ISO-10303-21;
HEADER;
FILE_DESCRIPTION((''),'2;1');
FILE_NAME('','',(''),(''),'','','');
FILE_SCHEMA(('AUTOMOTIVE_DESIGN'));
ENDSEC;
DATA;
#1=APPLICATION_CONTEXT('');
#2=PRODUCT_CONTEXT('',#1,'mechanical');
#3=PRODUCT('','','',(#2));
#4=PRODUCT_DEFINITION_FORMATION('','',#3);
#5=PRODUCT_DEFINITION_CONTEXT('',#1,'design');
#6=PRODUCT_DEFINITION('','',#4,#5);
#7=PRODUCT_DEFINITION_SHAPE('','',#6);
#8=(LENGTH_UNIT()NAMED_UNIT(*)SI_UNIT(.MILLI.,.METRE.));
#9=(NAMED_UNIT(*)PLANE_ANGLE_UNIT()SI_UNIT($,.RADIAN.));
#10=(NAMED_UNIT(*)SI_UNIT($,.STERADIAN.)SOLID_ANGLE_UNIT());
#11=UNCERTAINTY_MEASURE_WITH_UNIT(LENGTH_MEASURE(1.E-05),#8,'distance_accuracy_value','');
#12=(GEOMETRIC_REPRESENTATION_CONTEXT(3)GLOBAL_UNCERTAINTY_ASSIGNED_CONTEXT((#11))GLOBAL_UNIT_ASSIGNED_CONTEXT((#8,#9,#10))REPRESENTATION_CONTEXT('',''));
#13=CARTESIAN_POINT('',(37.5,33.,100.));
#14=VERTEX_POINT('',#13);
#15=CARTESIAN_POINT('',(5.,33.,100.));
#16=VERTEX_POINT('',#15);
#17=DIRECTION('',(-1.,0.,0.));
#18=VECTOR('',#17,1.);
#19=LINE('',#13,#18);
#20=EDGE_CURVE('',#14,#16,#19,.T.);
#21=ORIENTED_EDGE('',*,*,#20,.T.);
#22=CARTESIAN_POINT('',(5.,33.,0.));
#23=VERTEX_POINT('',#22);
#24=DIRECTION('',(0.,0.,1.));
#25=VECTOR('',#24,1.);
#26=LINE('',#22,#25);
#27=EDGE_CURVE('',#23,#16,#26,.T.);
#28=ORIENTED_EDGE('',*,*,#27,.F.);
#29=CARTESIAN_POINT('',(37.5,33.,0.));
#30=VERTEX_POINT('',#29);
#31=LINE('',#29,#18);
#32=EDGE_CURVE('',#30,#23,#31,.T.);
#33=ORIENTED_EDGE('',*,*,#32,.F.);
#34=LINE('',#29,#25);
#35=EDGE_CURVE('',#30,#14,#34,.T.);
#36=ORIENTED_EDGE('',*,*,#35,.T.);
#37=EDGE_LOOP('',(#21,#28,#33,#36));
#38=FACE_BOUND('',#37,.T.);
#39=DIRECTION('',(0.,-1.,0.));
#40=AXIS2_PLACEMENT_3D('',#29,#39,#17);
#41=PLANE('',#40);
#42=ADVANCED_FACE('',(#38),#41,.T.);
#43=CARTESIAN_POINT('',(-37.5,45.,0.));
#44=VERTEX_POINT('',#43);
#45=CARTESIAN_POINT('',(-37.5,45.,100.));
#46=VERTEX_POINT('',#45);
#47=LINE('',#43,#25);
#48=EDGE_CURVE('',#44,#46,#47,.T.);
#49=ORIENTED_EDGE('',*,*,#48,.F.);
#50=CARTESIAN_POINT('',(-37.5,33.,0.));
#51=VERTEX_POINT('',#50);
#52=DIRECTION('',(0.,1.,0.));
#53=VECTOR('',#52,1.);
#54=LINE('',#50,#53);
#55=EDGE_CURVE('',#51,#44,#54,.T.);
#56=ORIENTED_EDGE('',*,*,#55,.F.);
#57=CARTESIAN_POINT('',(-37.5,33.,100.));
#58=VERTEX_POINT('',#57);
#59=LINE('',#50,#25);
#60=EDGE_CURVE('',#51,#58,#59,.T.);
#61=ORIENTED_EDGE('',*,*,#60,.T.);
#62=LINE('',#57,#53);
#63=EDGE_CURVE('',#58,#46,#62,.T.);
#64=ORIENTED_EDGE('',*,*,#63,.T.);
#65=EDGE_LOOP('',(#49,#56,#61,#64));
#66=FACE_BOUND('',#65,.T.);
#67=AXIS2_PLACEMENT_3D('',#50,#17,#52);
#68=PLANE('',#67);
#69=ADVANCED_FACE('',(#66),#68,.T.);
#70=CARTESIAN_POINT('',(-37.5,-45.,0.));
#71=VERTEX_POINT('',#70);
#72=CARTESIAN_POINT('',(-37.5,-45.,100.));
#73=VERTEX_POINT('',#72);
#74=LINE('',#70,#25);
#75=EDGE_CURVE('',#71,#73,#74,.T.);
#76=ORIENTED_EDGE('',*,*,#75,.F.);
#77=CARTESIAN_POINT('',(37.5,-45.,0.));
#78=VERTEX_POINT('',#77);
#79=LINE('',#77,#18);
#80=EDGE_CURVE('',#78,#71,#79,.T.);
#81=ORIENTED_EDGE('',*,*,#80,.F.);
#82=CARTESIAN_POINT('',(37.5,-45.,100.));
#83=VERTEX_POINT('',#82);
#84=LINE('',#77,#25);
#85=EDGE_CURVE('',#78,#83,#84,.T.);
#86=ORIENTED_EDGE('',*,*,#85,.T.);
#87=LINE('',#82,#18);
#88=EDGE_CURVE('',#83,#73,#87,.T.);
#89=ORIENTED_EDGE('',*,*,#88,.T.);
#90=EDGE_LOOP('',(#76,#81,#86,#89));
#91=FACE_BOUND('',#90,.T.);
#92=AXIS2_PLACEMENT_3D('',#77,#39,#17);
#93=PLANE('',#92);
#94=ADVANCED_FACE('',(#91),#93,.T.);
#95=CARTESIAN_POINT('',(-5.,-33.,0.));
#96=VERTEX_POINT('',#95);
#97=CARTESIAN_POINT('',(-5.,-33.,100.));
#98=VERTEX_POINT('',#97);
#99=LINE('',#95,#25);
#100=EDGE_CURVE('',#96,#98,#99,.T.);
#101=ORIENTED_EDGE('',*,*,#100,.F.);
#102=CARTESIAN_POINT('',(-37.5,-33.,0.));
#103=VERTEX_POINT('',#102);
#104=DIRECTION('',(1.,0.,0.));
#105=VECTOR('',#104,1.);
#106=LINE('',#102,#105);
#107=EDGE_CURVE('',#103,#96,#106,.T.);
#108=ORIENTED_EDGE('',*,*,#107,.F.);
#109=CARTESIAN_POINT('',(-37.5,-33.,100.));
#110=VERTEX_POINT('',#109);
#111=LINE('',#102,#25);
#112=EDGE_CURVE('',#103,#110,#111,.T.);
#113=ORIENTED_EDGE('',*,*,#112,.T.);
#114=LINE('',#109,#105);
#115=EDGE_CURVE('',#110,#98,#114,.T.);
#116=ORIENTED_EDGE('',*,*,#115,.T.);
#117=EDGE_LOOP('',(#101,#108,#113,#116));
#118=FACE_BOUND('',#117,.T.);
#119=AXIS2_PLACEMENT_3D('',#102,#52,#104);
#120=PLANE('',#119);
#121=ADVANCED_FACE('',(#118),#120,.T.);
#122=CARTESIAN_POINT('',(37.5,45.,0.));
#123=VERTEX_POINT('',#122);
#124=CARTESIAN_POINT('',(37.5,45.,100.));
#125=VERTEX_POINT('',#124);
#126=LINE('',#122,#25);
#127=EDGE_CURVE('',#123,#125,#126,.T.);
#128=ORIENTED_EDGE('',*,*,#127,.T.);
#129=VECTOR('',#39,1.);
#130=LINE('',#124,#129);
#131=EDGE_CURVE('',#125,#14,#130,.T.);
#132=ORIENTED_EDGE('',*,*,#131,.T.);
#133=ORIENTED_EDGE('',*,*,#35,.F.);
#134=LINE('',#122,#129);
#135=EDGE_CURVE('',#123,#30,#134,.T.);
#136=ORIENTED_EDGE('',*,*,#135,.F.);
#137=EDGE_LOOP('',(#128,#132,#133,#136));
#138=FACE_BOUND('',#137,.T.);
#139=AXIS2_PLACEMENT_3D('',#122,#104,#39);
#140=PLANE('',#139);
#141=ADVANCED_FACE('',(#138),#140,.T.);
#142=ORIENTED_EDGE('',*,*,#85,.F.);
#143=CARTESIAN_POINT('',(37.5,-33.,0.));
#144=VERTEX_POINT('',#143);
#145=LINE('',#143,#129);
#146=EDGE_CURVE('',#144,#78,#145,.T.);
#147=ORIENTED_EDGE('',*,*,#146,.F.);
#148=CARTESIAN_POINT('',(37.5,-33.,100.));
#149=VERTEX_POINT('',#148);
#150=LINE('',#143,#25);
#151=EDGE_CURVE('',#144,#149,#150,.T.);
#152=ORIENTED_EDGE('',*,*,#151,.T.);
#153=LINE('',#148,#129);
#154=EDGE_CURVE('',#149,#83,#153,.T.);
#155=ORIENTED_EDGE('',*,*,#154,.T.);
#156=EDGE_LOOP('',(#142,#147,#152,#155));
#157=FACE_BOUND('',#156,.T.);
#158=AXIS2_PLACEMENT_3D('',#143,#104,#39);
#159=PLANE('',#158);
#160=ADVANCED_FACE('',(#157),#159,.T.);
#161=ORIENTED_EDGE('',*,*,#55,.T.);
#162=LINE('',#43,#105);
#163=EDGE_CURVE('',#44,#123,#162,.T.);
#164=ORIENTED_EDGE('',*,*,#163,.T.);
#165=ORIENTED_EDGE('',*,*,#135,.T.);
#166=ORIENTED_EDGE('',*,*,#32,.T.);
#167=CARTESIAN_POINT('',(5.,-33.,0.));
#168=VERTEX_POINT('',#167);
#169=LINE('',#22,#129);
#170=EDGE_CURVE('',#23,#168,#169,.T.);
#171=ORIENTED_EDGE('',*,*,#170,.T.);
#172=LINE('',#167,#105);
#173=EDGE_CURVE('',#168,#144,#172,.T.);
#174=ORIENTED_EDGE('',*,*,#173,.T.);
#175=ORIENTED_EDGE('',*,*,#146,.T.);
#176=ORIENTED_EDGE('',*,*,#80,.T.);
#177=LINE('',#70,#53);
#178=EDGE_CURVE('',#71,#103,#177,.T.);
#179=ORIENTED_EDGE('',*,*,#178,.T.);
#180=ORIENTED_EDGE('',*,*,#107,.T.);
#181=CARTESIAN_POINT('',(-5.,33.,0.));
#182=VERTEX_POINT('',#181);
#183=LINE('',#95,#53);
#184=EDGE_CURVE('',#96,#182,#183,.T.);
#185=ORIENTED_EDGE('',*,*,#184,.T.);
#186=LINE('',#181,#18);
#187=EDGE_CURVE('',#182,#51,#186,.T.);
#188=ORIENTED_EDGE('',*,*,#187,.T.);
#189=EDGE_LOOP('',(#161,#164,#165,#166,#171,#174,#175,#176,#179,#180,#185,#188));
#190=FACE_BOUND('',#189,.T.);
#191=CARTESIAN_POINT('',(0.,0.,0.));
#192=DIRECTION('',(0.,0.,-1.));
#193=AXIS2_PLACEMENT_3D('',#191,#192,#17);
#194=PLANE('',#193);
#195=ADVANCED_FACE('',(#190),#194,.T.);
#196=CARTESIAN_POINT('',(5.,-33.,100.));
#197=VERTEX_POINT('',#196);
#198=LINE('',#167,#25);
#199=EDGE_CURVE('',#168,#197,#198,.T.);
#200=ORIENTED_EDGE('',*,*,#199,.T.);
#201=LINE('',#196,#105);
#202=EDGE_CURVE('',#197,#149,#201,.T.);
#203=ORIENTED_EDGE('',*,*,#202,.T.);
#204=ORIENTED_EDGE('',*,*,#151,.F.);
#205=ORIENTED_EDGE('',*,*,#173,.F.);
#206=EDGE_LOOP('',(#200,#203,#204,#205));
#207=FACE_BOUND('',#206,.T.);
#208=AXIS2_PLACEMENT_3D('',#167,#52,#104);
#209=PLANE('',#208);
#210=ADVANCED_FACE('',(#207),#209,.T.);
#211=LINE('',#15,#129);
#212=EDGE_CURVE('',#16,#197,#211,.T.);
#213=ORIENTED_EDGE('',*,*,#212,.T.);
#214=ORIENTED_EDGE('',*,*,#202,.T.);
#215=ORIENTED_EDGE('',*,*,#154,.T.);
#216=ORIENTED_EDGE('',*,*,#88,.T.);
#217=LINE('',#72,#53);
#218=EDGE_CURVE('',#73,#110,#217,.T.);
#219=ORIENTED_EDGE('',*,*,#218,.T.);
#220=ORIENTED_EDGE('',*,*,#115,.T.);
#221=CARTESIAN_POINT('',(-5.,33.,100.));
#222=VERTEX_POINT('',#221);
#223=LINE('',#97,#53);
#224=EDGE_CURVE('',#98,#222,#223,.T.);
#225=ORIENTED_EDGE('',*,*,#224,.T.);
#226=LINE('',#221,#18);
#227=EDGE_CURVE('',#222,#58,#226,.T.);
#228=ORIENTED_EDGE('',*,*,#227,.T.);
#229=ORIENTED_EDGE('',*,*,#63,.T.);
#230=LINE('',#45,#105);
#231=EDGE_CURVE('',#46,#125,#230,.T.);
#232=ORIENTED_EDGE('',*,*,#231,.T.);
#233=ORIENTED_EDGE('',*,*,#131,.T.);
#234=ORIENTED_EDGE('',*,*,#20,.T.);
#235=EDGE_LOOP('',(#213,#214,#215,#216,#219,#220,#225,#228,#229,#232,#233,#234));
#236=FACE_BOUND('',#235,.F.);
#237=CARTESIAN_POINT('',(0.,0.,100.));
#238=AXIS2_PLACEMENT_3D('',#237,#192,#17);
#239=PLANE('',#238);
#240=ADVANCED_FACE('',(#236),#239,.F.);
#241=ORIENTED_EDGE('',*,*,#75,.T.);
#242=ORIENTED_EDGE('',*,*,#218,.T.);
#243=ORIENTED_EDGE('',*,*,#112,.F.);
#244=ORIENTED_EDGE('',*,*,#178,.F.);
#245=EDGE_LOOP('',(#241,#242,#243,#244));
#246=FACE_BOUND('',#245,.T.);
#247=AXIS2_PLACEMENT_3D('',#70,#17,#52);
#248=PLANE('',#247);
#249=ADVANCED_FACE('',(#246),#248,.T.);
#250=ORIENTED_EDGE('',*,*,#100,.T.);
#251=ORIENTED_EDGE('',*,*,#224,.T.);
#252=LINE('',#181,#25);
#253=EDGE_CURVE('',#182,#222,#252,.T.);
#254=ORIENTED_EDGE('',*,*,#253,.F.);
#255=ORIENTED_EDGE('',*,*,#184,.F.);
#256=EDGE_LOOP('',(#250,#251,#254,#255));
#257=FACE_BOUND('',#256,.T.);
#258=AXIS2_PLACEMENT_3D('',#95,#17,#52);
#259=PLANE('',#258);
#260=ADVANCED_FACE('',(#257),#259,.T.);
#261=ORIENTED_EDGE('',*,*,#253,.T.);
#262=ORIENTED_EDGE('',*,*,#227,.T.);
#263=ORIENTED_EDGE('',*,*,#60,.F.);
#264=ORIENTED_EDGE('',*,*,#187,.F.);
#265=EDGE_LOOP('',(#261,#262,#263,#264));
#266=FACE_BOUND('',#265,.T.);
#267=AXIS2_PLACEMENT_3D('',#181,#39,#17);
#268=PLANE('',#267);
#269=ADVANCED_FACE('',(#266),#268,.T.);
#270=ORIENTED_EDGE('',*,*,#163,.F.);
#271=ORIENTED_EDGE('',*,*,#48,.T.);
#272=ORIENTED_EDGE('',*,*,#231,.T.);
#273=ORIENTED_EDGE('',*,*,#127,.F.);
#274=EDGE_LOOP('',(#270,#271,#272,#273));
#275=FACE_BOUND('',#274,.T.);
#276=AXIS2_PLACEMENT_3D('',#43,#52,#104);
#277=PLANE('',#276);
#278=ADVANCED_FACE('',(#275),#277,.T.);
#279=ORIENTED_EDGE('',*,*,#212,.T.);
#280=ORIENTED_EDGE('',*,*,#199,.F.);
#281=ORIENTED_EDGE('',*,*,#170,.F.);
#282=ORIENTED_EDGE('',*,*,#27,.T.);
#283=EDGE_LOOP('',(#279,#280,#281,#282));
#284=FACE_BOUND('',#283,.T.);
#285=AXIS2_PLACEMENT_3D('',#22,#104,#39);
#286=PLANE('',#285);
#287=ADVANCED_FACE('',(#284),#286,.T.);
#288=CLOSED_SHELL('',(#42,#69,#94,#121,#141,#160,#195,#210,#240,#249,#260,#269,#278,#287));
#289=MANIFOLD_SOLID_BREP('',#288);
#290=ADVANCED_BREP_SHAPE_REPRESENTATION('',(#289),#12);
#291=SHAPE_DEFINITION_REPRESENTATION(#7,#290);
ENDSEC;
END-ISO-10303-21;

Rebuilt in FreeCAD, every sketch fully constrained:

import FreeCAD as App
import Part
import Sketcher
from FreeCAD import Vector

doc = App.newDocument("Part")
body = doc.addObject("PartDesign::Body", "Body")

sketch1 = body.newObject("Sketcher::SketchObject", "Sketch")
sketch1.AttachmentSupport = (doc.getObject("XY_Plane"), [""])
sketch1.MapMode = "FlatFace"
sketch1.addGeometry([
    Part.LineSegment(Vector(37.5, 45, 0), Vector(-37.5, 45, 0)),
    Part.LineSegment(Vector(-37.5, 45, 0), Vector(-37.5, 33, 0)),
    Part.LineSegment(Vector(-37.5, 33, 0), Vector(-5, 33, 0)),
    Part.LineSegment(Vector(-5, 33, 0), Vector(-5, -33, 0)),
    Part.LineSegment(Vector(-5, -33, 0), Vector(-37.5, -33, 0)),
    Part.LineSegment(Vector(-37.5, -33, 0), Vector(-37.5, -45, 0)),
    Part.LineSegment(Vector(-37.5, -45, 0), Vector(37.5, -45, 0)),
    Part.LineSegment(Vector(37.5, -45, 0), Vector(37.5, -33, 0)),
    Part.LineSegment(Vector(37.5, -33, 0), Vector(5, -33, 0)),
    Part.LineSegment(Vector(5, -33, 0), Vector(5, 33, 0)),
    Part.LineSegment(Vector(5, 33, 0), Vector(37.5, 33, 0)),
    Part.LineSegment(Vector(37.5, 33, 0), Vector(37.5, 45, 0)),
], False)
sketch1.addConstraint([
    Sketcher.Constraint("Coincident", 0, 2, 1, 1),
    Sketcher.Constraint("Coincident", 1, 2, 2, 1),
    Sketcher.Constraint("Coincident", 2, 2, 3, 1),
    Sketcher.Constraint("Coincident", 3, 2, 4, 1),
    Sketcher.Constraint("Coincident", 4, 2, 5, 1),
    Sketcher.Constraint("Coincident", 5, 2, 6, 1),
    Sketcher.Constraint("Coincident", 6, 2, 7, 1),
    Sketcher.Constraint("Coincident", 7, 2, 8, 1),
    Sketcher.Constraint("Coincident", 8, 2, 9, 1),
    Sketcher.Constraint("Coincident", 9, 2, 10, 1),
    Sketcher.Constraint("Coincident", 10, 2, 11, 1),
    Sketcher.Constraint("Coincident", 11, 2, 0, 1),
    Sketcher.Constraint("Horizontal", 0),
    Sketcher.Constraint("Vertical", 1),
    Sketcher.Constraint("Horizontal", 2),
    Sketcher.Constraint("Vertical", 3),
    Sketcher.Constraint("Horizontal", 4),
    Sketcher.Constraint("Vertical", 5),
    Sketcher.Constraint("Horizontal", 6),
    Sketcher.Constraint("Vertical", 7),
    Sketcher.Constraint("Horizontal", 8),
    Sketcher.Constraint("Vertical", 9),
    Sketcher.Constraint("Horizontal", 10),
    Sketcher.Constraint("Vertical", 11),
    Sketcher.Constraint("Symmetric", 0, 2, 6, 2, -1, 1),
    Sketcher.Constraint("Symmetric", 2, 2, 8, 2, -1, 1),
    Sketcher.Constraint("Symmetric", 4, 2, 10, 2, -1, 1),
    Sketcher.Constraint("Symmetric", 4, 2, 7, 2, -2),
    Sketcher.Constraint("DistanceX", 0, 2, 0, 1, 75.0),
    Sketcher.Constraint("DistanceY", 1, 2, 1, 1, 12.0),
    Sketcher.Constraint("DistanceY", 3, 2, 3, 1, 66.0),
    Sketcher.Constraint("DistanceX", 2, 1, 2, 2, 32.5),
])
pad1 = body.newObject("PartDesign::Pad", "Pad")
pad1.Profile = sketch1
pad1.Length = 100

doc.recompute()
